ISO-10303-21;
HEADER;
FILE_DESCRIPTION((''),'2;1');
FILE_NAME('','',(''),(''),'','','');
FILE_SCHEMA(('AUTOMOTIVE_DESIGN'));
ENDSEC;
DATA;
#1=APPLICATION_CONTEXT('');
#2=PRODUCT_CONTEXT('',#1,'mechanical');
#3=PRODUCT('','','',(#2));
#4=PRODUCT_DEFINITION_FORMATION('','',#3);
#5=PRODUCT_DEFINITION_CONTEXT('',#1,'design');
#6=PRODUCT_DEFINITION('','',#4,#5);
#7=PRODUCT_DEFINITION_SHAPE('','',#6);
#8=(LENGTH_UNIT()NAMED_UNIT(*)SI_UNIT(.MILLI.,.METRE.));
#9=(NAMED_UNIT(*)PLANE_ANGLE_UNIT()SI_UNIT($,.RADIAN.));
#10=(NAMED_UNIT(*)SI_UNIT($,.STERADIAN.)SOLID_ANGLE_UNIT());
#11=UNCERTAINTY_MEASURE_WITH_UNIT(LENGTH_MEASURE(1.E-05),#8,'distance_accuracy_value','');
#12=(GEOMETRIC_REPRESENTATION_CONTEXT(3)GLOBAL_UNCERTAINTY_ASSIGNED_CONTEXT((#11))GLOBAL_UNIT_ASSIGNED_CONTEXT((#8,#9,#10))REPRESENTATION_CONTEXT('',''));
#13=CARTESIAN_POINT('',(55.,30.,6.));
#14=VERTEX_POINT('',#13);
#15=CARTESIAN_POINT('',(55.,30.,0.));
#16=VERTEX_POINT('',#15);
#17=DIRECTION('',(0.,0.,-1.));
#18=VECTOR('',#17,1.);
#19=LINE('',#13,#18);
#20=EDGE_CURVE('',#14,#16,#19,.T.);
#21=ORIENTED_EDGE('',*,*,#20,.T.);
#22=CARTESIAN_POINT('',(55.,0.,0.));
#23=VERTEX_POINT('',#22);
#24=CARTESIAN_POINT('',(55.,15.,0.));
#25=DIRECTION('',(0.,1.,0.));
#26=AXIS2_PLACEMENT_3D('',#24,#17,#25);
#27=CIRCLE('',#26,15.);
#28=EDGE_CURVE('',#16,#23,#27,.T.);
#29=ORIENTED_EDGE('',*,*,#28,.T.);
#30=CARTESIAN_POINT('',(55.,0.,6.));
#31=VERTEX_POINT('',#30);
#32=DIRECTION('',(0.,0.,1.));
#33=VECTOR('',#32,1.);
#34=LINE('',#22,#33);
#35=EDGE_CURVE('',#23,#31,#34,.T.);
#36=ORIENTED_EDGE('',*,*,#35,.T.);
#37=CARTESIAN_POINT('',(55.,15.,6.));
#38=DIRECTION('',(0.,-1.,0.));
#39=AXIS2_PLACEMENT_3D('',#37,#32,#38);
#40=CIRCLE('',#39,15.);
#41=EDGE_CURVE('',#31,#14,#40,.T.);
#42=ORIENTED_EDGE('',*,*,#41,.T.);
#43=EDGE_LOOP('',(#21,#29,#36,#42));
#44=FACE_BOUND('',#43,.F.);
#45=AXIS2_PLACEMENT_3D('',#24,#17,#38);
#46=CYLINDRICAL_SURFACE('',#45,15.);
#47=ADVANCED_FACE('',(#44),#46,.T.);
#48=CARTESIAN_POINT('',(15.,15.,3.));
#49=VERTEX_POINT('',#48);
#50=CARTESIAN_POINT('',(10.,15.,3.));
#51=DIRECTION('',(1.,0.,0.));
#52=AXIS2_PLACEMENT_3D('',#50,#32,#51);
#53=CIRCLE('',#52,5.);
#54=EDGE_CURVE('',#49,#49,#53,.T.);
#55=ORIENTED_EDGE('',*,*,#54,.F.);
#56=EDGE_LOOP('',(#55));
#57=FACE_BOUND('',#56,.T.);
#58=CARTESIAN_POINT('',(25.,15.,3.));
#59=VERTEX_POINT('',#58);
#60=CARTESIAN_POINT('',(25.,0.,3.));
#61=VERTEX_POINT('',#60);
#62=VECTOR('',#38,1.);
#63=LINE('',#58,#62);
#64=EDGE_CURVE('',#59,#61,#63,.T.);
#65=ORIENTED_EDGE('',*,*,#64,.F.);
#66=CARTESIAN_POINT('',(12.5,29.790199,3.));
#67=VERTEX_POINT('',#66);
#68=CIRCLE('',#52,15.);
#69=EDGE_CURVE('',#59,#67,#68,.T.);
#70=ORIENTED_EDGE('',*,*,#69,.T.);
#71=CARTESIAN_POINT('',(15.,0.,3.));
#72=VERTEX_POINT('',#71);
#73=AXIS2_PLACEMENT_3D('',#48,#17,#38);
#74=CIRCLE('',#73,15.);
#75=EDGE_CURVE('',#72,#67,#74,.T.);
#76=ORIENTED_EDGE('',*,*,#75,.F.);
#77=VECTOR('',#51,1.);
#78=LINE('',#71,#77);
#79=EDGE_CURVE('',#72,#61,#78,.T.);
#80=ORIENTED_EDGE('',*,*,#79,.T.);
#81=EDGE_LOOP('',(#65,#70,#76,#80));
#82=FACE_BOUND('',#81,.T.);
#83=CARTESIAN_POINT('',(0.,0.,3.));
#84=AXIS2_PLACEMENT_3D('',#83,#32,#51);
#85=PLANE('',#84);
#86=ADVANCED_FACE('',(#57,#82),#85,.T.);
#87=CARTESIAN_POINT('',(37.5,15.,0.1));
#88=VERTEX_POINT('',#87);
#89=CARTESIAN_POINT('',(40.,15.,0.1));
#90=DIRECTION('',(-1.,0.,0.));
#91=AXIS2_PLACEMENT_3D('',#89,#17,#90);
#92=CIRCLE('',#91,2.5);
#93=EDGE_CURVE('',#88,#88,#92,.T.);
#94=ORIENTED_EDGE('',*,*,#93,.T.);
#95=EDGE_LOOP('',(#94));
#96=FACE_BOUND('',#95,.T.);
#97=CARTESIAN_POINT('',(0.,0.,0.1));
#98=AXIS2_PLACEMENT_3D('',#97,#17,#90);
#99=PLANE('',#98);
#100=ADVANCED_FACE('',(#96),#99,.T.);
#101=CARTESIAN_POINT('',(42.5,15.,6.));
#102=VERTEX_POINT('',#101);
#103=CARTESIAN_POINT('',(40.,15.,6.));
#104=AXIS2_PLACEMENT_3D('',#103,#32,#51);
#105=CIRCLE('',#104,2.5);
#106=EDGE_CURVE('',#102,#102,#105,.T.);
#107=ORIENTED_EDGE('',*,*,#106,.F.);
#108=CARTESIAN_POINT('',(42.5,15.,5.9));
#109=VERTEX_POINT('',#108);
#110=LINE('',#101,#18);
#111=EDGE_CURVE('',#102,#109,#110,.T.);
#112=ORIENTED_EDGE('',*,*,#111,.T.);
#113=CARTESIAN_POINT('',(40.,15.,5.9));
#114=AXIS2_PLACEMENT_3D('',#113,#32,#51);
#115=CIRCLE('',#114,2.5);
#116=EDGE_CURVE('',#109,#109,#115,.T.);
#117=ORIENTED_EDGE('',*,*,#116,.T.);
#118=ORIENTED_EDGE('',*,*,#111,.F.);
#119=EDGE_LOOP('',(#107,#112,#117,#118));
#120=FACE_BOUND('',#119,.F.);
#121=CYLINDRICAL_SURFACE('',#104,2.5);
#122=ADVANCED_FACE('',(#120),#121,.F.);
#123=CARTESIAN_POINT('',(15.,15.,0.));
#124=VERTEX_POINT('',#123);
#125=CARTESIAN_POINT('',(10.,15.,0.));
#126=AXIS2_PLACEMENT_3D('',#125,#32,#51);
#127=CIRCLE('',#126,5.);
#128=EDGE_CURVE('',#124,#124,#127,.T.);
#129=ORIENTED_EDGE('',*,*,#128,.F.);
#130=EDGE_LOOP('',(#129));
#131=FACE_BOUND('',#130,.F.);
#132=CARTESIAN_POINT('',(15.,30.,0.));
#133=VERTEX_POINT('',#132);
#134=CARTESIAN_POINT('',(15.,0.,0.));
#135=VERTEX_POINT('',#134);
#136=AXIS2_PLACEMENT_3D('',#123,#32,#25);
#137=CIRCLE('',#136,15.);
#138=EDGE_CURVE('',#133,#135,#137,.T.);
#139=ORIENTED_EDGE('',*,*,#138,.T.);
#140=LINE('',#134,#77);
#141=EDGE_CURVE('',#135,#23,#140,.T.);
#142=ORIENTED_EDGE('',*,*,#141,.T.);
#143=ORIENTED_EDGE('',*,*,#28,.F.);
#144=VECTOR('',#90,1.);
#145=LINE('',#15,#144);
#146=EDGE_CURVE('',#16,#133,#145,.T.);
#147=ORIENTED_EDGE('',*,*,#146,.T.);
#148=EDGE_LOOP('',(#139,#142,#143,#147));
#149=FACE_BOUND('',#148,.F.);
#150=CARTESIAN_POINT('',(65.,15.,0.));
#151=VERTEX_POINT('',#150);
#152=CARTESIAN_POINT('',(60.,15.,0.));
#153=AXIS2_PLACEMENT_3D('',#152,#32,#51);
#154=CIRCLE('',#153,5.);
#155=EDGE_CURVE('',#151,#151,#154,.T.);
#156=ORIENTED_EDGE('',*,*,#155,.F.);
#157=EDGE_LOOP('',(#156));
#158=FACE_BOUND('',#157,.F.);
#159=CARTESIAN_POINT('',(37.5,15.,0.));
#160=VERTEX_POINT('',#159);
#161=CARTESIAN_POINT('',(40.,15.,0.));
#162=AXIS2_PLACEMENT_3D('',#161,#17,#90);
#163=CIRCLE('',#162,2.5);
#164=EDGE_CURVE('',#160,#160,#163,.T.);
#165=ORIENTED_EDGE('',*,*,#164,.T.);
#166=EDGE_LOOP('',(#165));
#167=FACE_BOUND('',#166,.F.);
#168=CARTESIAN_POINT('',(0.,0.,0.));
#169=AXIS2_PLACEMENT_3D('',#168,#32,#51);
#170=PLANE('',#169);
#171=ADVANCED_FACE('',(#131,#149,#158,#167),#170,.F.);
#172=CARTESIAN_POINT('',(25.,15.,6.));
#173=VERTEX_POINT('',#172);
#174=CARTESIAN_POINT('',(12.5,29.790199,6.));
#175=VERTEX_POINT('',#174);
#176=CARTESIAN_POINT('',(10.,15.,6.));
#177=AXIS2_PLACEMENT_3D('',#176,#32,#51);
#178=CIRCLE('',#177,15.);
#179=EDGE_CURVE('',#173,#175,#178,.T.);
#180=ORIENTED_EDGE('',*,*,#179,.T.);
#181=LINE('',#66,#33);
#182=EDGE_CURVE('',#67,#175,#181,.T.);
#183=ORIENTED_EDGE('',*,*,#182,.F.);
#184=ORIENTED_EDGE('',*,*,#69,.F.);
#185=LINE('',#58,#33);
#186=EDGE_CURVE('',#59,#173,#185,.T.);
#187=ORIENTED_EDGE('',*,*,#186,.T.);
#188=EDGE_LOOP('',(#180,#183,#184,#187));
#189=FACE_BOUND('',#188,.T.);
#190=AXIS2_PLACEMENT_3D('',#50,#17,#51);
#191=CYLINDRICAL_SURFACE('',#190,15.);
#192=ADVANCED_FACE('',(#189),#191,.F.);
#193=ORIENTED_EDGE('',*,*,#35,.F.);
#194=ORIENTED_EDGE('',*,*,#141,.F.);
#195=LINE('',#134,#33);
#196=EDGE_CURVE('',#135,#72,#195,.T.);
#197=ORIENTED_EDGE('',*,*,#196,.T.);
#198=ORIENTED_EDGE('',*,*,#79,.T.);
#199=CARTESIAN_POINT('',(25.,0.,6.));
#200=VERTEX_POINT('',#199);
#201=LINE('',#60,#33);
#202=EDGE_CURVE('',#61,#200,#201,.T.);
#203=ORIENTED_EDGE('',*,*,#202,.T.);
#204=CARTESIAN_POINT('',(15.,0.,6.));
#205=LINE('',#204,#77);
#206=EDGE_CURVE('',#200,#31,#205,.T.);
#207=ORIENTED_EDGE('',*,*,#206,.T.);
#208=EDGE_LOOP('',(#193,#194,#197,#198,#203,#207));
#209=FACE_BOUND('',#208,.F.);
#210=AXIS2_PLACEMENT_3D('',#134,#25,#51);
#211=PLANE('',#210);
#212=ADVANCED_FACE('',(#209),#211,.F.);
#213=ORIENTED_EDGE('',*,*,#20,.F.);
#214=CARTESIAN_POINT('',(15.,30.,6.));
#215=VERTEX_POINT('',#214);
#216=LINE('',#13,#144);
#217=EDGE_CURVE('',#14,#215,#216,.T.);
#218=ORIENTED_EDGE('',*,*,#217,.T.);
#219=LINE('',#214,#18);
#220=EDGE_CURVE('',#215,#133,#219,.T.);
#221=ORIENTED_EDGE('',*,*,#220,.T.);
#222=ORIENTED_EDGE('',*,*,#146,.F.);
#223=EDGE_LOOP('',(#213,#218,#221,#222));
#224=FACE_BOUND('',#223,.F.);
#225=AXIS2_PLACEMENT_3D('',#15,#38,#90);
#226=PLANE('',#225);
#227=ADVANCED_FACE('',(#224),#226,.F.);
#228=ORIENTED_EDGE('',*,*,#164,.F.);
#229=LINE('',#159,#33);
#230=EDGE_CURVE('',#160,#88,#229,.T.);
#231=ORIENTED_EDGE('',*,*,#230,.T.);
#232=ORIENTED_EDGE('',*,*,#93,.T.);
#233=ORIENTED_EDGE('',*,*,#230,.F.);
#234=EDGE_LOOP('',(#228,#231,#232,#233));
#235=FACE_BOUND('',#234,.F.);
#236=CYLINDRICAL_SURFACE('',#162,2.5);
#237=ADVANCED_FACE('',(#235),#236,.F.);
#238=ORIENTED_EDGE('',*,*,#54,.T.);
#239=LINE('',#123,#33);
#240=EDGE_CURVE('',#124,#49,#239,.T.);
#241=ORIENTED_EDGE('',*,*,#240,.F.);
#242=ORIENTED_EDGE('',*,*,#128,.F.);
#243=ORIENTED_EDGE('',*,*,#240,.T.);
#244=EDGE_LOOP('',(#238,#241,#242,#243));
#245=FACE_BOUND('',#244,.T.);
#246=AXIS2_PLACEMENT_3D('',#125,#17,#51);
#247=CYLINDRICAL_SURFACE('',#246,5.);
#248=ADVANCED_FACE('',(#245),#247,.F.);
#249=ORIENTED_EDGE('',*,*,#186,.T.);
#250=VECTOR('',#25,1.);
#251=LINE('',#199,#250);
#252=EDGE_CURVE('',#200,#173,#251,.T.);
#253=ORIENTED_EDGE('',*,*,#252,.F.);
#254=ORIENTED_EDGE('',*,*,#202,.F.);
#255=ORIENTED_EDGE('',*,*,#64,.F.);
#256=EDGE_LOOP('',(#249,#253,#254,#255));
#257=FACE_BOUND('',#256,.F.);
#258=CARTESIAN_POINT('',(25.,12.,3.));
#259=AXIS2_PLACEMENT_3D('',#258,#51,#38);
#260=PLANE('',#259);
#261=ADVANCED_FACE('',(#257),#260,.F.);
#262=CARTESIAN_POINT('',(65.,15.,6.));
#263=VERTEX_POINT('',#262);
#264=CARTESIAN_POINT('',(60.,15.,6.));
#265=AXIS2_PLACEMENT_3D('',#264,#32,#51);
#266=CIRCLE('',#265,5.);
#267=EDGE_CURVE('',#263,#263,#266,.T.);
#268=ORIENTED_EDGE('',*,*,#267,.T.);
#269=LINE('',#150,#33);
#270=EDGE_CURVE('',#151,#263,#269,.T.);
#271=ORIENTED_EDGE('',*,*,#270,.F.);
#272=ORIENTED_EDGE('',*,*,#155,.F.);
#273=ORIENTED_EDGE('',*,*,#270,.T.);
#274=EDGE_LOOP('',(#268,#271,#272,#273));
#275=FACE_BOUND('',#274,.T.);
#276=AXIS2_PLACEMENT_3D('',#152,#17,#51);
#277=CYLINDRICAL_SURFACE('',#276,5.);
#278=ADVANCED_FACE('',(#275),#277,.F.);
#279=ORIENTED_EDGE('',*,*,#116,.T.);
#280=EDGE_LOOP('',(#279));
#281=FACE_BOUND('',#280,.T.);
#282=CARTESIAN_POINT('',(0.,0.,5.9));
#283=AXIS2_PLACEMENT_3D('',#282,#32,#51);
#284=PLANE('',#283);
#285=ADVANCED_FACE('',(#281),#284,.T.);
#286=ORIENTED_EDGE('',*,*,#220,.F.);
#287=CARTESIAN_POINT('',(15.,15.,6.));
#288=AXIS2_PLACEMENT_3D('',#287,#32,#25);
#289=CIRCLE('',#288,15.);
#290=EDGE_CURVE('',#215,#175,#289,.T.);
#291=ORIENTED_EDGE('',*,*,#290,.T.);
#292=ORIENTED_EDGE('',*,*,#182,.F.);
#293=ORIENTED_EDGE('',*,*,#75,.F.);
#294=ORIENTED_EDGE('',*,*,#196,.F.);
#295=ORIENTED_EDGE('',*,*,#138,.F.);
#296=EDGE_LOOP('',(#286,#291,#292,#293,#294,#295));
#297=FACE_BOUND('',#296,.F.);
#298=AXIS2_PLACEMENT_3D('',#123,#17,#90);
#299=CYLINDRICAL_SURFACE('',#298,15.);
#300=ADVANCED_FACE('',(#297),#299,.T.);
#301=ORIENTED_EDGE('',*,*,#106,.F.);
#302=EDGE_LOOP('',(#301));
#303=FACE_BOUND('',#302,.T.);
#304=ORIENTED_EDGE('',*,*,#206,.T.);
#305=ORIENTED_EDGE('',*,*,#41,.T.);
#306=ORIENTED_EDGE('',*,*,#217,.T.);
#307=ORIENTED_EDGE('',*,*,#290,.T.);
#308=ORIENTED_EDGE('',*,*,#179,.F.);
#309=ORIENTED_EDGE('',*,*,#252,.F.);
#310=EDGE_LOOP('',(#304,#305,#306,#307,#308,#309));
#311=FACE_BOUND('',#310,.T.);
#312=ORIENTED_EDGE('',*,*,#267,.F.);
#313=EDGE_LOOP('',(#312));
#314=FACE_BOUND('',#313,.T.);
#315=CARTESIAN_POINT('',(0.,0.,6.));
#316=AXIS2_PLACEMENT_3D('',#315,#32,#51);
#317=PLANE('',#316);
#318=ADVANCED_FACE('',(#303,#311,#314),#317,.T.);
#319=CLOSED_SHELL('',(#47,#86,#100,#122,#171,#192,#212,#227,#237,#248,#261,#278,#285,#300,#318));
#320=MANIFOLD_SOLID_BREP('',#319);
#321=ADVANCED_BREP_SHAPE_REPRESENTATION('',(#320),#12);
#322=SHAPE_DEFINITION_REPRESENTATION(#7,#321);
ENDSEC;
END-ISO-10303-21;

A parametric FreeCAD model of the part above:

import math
import FreeCAD as App
import Part
import Sketcher
from FreeCAD import Vector

doc = App.newDocument("Part")
params = doc.addObject("Spreadsheet::Sheet", "Params")
for row, (alias, value) in enumerate([
    ("sketch1_diameter", "10 mm"),
    ("sketch1_radius", "15 mm"),
    ("sketch1_width", "40 mm"),
    ("pad1_length", "3 mm"),
    ("sketch2_radius", "15 mm"),
    ("sketch2_diameter", "10 mm"),
    ("sketch2_width", "30 mm"),
    ("sketch2_width2", "40 mm"),
    ("pad2_length", "3 mm"),
    ("sketch3_diameter", "5 mm"),
    ("pocket1_length", "0.1 mm"),
    ("sketch4_diameter", "5 mm"),
    ("pocket2_length", "0.1 mm"),
], start=1):
    params.set(f"A{row}", alias)
    params.set(f"B{row}", "=" + value)
    params.setAlias(f"B{row}", alias)

body = doc.addObject("PartDesign::Body", "Body")

# Sketch on XY plane
sketch1 = body.newObject("Sketcher::SketchObject", "Sketch")
sketch1.AttachmentSupport = (doc.getObject("XY_Plane"), [""])
sketch1.MapMode = "FlatFace"
sketch1.addGeometry([
    Part.ArcOfCircle(Part.Circle(Vector(15, 15, 0), Vector(0, 0, 1), 15), math.radians(90), math.radians(270)),  # 0
    Part.LineSegment(Vector(15, 0, 0), Vector(55, 0, 0)),  # 1
    Part.ArcOfCircle(Part.Circle(Vector(55, 15, 0), Vector(0, 0, 1), 15), math.radians(-90), math.radians(90)),  # 2
    Part.LineSegment(Vector(55, 30, 0), Vector(15, 30, 0)),  # 3
    Part.Circle(Vector(10, 15, 0), Vector(0, 0, 1), 5),  # 4
    Part.Circle(Vector(60, 15, 0), Vector(0, 0, 1), 5),  # 5
], False)
sketch1.addConstraint([
    Sketcher.Constraint("Tangent", 0, 2, 1, 1),
    Sketcher.Constraint("Tangent", 1, 2, 2, 1),
    Sketcher.Constraint("Tangent", 2, 2, 3, 1),
    Sketcher.Constraint("Tangent", 3, 2, 0, 1),
    Sketcher.Constraint("Horizontal", 1),
    Sketcher.Constraint("Horizontal", 3),
    Sketcher.Constraint("Equal", 4, 5),
    Sketcher.Constraint("PointOnObject", 0, 2, -1),
    Sketcher.Constraint("Horizontal", 2, 3, 4, 3),
    Sketcher.Constraint("Horizontal", 4, 3, 5, 3),
    Sketcher.Constraint("Diameter", 4, 10.0),
    Sketcher.Constraint("Radius", 0, 15.0),
    Sketcher.Constraint("DistanceX", -1, 1, 0, 3, 15.0),
    Sketcher.Constraint("DistanceX", -1, 1, 4, 3, 10.0),
    Sketcher.Constraint("DistanceX", 4, 3, 5, 3, 50.0),
    Sketcher.Constraint("DistanceX", 1, 1, 1, 2, 40.0),
])
sketch1.setExpression("Constraints[10]", "Params.sketch1_diameter")
sketch1.setExpression("Constraints[11]", "Params.sketch1_radius")
sketch1.setExpression("Constraints[15]", "Params.sketch1_width")
pad1 = body.newObject("PartDesign::Pad", "Pad")
pad1.Profile = sketch1
pad1.setExpression("Length", "Params.pad1_length")

# Sketch on XY plane
sketch2 = body.newObject("Sketcher::SketchObject", "Sketch001")
sketch2.AttachmentSupport = (doc.getObject("XY_Plane"), [""])
sketch2.MapMode = "FlatFace"
sketch2.AttachmentOffset = App.Placement(Vector(0, 0, 3), App.Rotation())
sketch2.addGeometry([
    Part.LineSegment(Vector(25, 0, 0), Vector(55, 0, 0)),  # 0
    Part.ArcOfCircle(Part.Circle(Vector(55, 15, 0), Vector(0, 0, 1), 15), math.radians(-90), math.radians(90)),  # 1
    Part.LineSegment(Vector(55, 30, 0), Vector(15, 30, 0)),  # 2
    Part.ArcOfCircle(Part.Circle(Vector(15, 15, 0), Vector(0, 0, 1), 15), math.radians(90), math.radians(99.59)),  # 3
    Part.ArcOfCircle(Part.Circle(Vector(10, 15, 0), Vector(0, 0, 1), 15), math.radians(0), math.radians(80)),  # 4
    Part.LineSegment(Vector(25, 15, 0), Vector(25, 0, 0)),  # 5
    Part.Circle(Vector(60, 15, 0), Vector(0, 0, 1), 5),  # 6
], False)
sketch2.addConstraint([
    Sketcher.Constraint("Tangent", 0, 2, 1, 1),
    Sketcher.Constraint("Tangent", 1, 2, 2, 1),
    Sketcher.Constraint("Tangent", 2, 2, 3, 1),
    Sketcher.Constraint("Coincident", 3, 2, 4, 2),
    Sketcher.Constraint("Tangent", 4, 1, 5, 1),
    Sketcher.Constraint("Coincident", 5, 2, 0, 1),
    Sketcher.Constraint("Horizontal", 0),
    Sketcher.Constraint("Horizontal", 2),
    Sketcher.Constraint("Vertical", 5),
    Sketcher.Constraint("Equal", 1, 3),
    Sketcher.Constraint("Equal", 3, 4),
    Sketcher.Constraint("PointOnObject", 0, 2, -1),
    Sketcher.Constraint("Horizontal", 3, 3, 4, 3),
    Sketcher.Constraint("Horizontal", 4, 3, 6, 3),
    Sketcher.Constraint("Radius", 1, 15.0),
    Sketcher.Constraint("Diameter", 6, 10.0),
    Sketcher.Constraint("DistanceX", -1, 1, 3, 3, 15.0),
    Sketcher.Constraint("DistanceX", 0, 1, 0, 2, 30.0),
    Sketcher.Constraint("DistanceX", 2, 2, 2, 1, 40.0),
    Sketcher.Constraint("DistanceX", -1, 1, 6, 3, 60.0),
])
sketch2.setExpression("Constraints[14]", "Params.sketch2_radius")
sketch2.setExpression("Constraints[15]", "Params.sketch2_diameter")
sketch2.setExpression("Constraints[17]", "Params.sketch2_width")
sketch2.setExpression("Constraints[18]", "Params.sketch2_width2")
pad2 = body.newObject("PartDesign::Pad", "Pad001")
pad2.Profile = sketch2
pad2.setExpression("Length", "Params.pad2_length")

# Sketch on XY plane
sketch3 = body.newObject("Sketcher::SketchObject", "Sketch002")
sketch3.AttachmentSupport = (doc.getObject("XY_Plane"), [""])
sketch3.MapMode = "FlatFace"
sketch3.addGeometry(Part.Circle(Vector(40, 15, 0), Vector(0, 0, 1), 2.5), False)
sketch3.addConstraint([
    Sketcher.Constraint("Diameter", 0, 5.0),
    Sketcher.Constraint("DistanceY", -1, 1, 0, 3, 15.0),
    Sketcher.Constraint("DistanceX", -1, 1, 0, 3, 40.0),
])
sketch3.setExpression("Constraints[0]", "Params.sketch3_diameter")
pocket1 = body.newObject("PartDesign::Pocket", "Pocket")
pocket1.Profile = sketch3
pocket1.setExpression("Length", "Params.pocket1_length")
pocket1.Reversed = True

# Sketch on XY plane
sketch4 = body.newObject("Sketcher::SketchObject", "Sketch003")
sketch4.AttachmentSupport = (doc.getObject("XY_Plane"), [""])
sketch4.MapMode = "FlatFace"
sketch4.AttachmentOffset = App.Placement(Vector(0, 0, 6), App.Rotation())
sketch4.addGeometry(Part.Circle(Vector(40, 15, 0), Vector(0, 0, 1), 2.5), False)
sketch4.addConstraint([
    Sketcher.Constraint("Diameter", 0, 5.0),
    Sketcher.Constraint("DistanceX", -1, 1, 0, 3, 40.0),
    Sketcher.Constraint("DistanceY", -1, 1, 0, 3, 15.0),
])
sketch4.setExpression("Constraints[0]", "Params.sketch4_diameter")
pocket2 = body.newObject("PartDesign::Pocket", "Pocket001")
pocket2.Profile = sketch4
pocket2.setExpression("Length", "Params.pocket2_length")

doc.recompute()
